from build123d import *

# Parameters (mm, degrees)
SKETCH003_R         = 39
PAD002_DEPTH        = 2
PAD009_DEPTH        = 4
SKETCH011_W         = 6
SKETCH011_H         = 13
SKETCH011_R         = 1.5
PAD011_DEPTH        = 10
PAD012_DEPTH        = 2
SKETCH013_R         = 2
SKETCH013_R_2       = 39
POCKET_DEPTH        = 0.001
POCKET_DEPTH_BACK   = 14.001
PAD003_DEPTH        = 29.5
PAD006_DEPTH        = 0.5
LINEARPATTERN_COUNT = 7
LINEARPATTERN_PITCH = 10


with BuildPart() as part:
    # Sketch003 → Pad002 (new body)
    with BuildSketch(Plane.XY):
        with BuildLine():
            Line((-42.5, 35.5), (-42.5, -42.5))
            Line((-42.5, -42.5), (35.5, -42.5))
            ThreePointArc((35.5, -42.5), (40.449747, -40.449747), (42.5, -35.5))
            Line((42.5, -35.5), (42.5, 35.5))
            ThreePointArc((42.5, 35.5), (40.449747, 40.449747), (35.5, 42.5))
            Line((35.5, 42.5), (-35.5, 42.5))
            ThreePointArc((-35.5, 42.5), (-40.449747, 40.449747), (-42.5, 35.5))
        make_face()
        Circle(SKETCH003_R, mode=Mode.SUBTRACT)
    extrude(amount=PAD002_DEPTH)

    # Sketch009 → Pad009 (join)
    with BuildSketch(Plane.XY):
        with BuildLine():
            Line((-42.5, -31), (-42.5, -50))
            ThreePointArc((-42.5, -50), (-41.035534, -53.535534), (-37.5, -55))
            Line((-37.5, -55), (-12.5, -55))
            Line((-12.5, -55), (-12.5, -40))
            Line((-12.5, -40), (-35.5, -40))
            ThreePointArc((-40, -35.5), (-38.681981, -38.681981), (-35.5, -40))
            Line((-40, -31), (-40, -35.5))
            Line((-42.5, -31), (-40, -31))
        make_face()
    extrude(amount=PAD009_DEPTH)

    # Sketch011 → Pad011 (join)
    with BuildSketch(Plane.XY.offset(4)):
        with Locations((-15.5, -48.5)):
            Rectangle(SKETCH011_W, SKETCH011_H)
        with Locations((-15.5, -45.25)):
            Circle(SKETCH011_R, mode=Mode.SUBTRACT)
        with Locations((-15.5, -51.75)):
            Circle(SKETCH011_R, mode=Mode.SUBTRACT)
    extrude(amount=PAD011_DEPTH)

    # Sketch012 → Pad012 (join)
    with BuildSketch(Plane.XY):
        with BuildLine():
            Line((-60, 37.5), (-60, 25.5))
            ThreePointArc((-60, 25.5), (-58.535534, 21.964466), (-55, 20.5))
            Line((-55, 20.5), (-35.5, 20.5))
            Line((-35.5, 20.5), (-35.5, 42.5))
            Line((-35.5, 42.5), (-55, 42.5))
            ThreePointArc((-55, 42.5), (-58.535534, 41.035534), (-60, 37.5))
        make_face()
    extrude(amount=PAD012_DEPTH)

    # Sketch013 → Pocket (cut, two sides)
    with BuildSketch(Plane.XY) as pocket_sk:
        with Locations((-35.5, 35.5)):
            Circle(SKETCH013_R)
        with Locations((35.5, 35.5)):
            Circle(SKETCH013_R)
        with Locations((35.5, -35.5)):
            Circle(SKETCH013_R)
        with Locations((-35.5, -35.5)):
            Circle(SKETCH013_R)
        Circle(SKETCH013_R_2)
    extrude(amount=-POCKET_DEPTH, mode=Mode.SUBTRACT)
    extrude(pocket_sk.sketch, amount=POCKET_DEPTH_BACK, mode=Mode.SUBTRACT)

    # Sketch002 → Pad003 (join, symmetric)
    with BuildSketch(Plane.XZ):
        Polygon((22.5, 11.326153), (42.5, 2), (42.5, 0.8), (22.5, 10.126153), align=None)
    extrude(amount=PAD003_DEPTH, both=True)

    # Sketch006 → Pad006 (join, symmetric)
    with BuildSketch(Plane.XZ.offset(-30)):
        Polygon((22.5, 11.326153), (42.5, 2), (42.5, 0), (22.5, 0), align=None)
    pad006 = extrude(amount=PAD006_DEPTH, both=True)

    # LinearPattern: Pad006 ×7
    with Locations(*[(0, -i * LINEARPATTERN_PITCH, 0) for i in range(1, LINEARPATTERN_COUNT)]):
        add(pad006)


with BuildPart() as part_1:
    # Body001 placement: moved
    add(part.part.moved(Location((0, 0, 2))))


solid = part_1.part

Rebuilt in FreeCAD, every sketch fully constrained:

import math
import FreeCAD as App
import Part
import Sketcher
Q = App.Units.Quantity


def add_polygon(sketch, points):
    """Adds a closed chain of lines whose ends are joined by coincident constraints."""
    first, n = sketch.GeometryCount, len(points)
    for a, b in zip(points, points[1:] + points[:1]):
        sketch.addGeometry(Part.LineSegment(App.Vector(*a, 0), App.Vector(*b, 0)), False)
    for i in range(n):
        sketch.addConstraint(Sketcher.Constraint("Coincident", first + i, 2, first + (i + 1) % n, 1))

doc = App.newDocument("Part")
body = doc.addObject("PartDesign::Body", "Body")

# Sketch on XY plane
sketch1 = body.newObject("Sketcher::SketchObject", "Sketch")
sketch1.AttachmentSupport = (doc.getObject("XY_Plane"), [""])
sketch1.MapMode = "FlatFace"
sketch1.addGeometry(Part.LineSegment(App.Vector(-42, 36, 0), App.Vector(-42, -42, 0)), False)
sketch1.addGeometry(Part.LineSegment(App.Vector(-42, -42, 0), App.Vector(36, -42, 0)), False)
sketch1.addGeometry(Part.ArcOfCircle(Part.Circle(App.Vector(35, -35, 0), App.Vector(0, 0, 1), 7), math.radians(-90), math.radians(0)), False)
sketch1.addGeometry(Part.LineSegment(App.Vector(42, -36, 0), App.Vector(42, 36, 0)), False)
sketch1.addGeometry(Part.ArcOfCircle(Part.Circle(App.Vector(35, 35, 0), App.Vector(0, 0, 1), 7), math.radians(0), math.radians(90)), False)
sketch1.addGeometry(Part.LineSegment(App.Vector(36, 42, 0), App.Vector(-36, 42, 0)), False)
sketch1.addGeometry(Part.ArcOfCircle(Part.Circle(App.Vector(-35, 35, 0), App.Vector(0, 0, 1), 7), math.radians(90), math.radians(180)), False)
sketch1.addGeometry(Part.Circle(App.Vector(0, 0, 0), App.Vector(0, 0, 1), 39), False)
sketch1.addConstraint(Sketcher.Constraint("Coincident", 0, 2, 1, 1))
sketch1.addConstraint(Sketcher.Constraint("Tangent", 1, 2, 2, 1))
sketch1.addConstraint(Sketcher.Constraint("Tangent", 2, 2, 3, 1))
sketch1.addConstraint(Sketcher.Constraint("Tangent", 3, 2, 4, 1))
sketch1.addConstraint(Sketcher.Constraint("Tangent", 4, 2, 5, 1))
sketch1.addConstraint(Sketcher.Constraint("Tangent", 5, 2, 6, 1))
sketch1.addConstraint(Sketcher.Constraint("Tangent", 6, 2, 0, 1))
sketch1.addConstraint(Sketcher.Constraint("Vertical", 0))
sketch1.addConstraint(Sketcher.Constraint("Horizontal", 1))
sketch1.addConstraint(Sketcher.Constraint("Vertical", 3))
sketch1.addConstraint(Sketcher.Constraint("Horizontal", 5))
sketch1.addConstraint(Sketcher.Constraint("Coincident", 7, 3, -1, 1))
sketch1.addConstraint(Sketcher.Constraint("Equal", 2, 4))
sketch1.addConstraint(Sketcher.Constraint("Equal", 4, 6))
sketch1.addConstraint(Sketcher.Constraint("Symmetric", 2, 3, 6, 3, -1, 1))
sketch1.addConstraint(Sketcher.Constraint("Equal", 1, 0))
sketch1.addConstraint(Sketcher.Constraint("Diameter", 7, 78.0))
sketch1.addConstraint(Sketcher.Constraint("Radius", 2, 7.000002))
sketch1.addConstraint(Sketcher.Constraint("DistanceX", 1, 1, 1, 2, 78.0))
pad1 = body.newObject("PartDesign::Pad", "Pad")
pad1.Profile = sketch1
pad1.Length = 2

# Sketch on XY plane
sketch2 = body.newObject("Sketcher::SketchObject", "Sketch001")
sketch2.AttachmentSupport = (doc.getObject("XY_Plane"), [""])
sketch2.MapMode = "FlatFace"
sketch2.addGeometry(Part.LineSegment(App.Vector(-42.5, -31, 0), App.Vector(-42.5, -50, 0)), False)
sketch2.addGeometry(Part.ArcOfCircle(Part.Circle(App.Vector(-37.5, -50, 0), App.Vector(0, 0, 1), 5), math.radians(180), math.radians(270)), False)
sketch2.addGeometry(Part.LineSegment(App.Vector(-37.5, -55, 0), App.Vector(-12.5, -55, 0)), False)
sketch2.addGeometry(Part.LineSegment(App.Vector(-12.5, -55, 0), App.Vector(-12.5, -40, 0)), False)
sketch2.addGeometry(Part.LineSegment(App.Vector(-12.5, -40, 0), App.Vector(-35.5, -40, 0)), False)
sketch2.addGeometry(Part.ArcOfCircle(Part.Circle(App.Vector(-35.5, -35.5, 0), App.Vector(0, 0, 1), 4.5), math.radians(180), math.radians(270)), False)
sketch2.addGeometry(Part.LineSegment(App.Vector(-40, -35.5, 0), App.Vector(-40, -31, 0)), False)
sketch2.addGeometry(Part.LineSegment(App.Vector(-40, -31, 0), App.Vector(-42.5, -31, 0)), False)
sketch2.addConstraint(Sketcher.Constraint("Tangent", 0, 2, 1, 1))
sketch2.addConstraint(Sketcher.Constraint("Tangent", 1, 2, 2, 1))
sketch2.addConstraint(Sketcher.Constraint("Coincident", 2, 2, 3, 1))
sketch2.addConstraint(Sketcher.Constraint("Coincident", 3, 2, 4, 1))
sketch2.addConstraint(Sketcher.Constraint("Tangent", 4, 2, 5, 2))
sketch2.addConstraint(Sketcher.Constraint("Tangent", 5, 1, 6, 1))
sketch2.addConstraint(Sketcher.Constraint("Coincident", 6, 2, 7, 1))
sketch2.addConstraint(Sketcher.Constraint("Coincident", 7, 2, 0, 1))
sketch2.addConstraint(Sketcher.Constraint("Vertical", 0))
sketch2.addConstraint(Sketcher.Constraint("Horizontal", 2))
sketch2.addConstraint(Sketcher.Constraint("Vertical", 3))
sketch2.addConstraint(Sketcher.Constraint("Horizontal", 4))
sketch2.addConstraint(Sketcher.Constraint("Vertical", 6))
sketch2.addConstraint(Sketcher.Constraint("Horizontal", 7))
sketch2.addConstraint(Sketcher.Constraint("Radius", 1, 5.0))
sketch2.addConstraint(Sketcher.Constraint("Radius", 5, 4.499998))
sketch2.addConstraint(Sketcher.Constraint("DistanceX", 2, 1, 2, 2, 25.0))
sketch2.addConstraint(Sketcher.Constraint("DistanceX", 4, 2, 4, 1, 23.0))
sketch2.addConstraint(Sketcher.Constraint("DistanceY", 0, 2, 0, 1, 19.0))
sketch2.addConstraint(Sketcher.Constraint("DistanceY", 3, 1, 3, 2, 15.0))
sketch2.addConstraint(Sketcher.Constraint("DistanceY", 1, 3, -1, 1, 50.0))
sketch2.addConstraint(Sketcher.Constraint("DistanceX", 5, 1, -1, 1, 40.0))
pad2 = body.newObject("PartDesign::Pad", "Pad001")
pad2.Profile = sketch2
pad2.Length = 4

# Sketch on XY plane
sketch3 = body.newObject("Sketcher::SketchObject", "Sketch002")
sketch3.AttachmentSupport = (doc.getObject("XY_Plane"), [""])
sketch3.MapMode = "FlatFace"
sketch3.AttachmentOffset = App.Placement(App.Vector(0, 0, 4), App.Rotation())
add_polygon(sketch3, [(-18.5, -42), (-18.5, -55), (-12.5, -55), (-12.5, -42)])  # lines 0-3
sketch3.addGeometry(Part.Circle(App.Vector(-15.5, -51.8, 0), App.Vector(0, 0, 1), 1.5), False)  # 4
sketch3.addGeometry(Part.Circle(App.Vector(-15.5, -45.2, 0), App.Vector(0, 0, 1), 1.5), False)  # 5
sketch3.addConstraint(Sketcher.Constraint("Vertical", 0))
sketch3.addConstraint(Sketcher.Constraint("Horizontal", 1))
sketch3.addConstraint(Sketcher.Constraint("Vertical", 2))
sketch3.addConstraint(Sketcher.Constraint("Horizontal", 3))
sketch3.addConstraint(Sketcher.Constraint("Equal", 4, 5))
sketch3.addConstraint(Sketcher.Constraint("Vertical", 4, 3, 5, 3))
sketch3.addConstraint(Sketcher.Constraint("Diameter", 4, 3.0))
sketch3.addConstraint(Sketcher.Constraint("DistanceX", 1, 1, 1, 2, 6.0))
sketch3.addConstraint(Sketcher.Constraint("DistanceY", 0, 2, 0, 1, 13.0))
sketch3.addConstraint(Sketcher.Constraint("DistanceY", 0, 2, -1, 1, 55.0))
sketch3.addConstraint(Sketcher.Constraint("DistanceX", 0, 2, 4, 3, 3.0))
sketch3.addConstraint(Sketcher.Constraint("DistanceX", 4, 3, -1, 1, 15.5))
sketch3.addConstraint(Sketcher.Constraint("DistanceY", 4, 3, 5, 3, 6.5))
sketch3.addConstraint(Sketcher.Constraint("DistanceY", 4, 3, -1, 1, 51.75))
pad3 = body.newObject("PartDesign::Pad", "Pad002")
pad3.Profile = sketch3
pad3.Length = 10

# Sketch on XY plane
sketch4 = body.newObject("Sketcher::SketchObject", "Sketch003")
sketch4.AttachmentSupport = (doc.getObject("XY_Plane"), [""])
sketch4.MapMode = "FlatFace"
sketch4.addGeometry(Part.LineSegment(App.Vector(-60, 37.5, 0), App.Vector(-60, 25.5, 0)), False)
sketch4.addGeometry(Part.ArcOfCircle(Part.Circle(App.Vector(-55, 25.5, 0), App.Vector(0, 0, 1), 5), math.radians(180), math.radians(270)), False)
sketch4.addGeometry(Part.LineSegment(App.Vector(-55, 20.5, 0), App.Vector(-35.5, 20.5, 0)), False)
sketch4.addGeometry(Part.LineSegment(App.Vector(-35.5, 20.5, 0), App.Vector(-35.5, 42.5, 0)), False)
sketch4.addGeometry(Part.LineSegment(App.Vector(-35.5, 42.5, 0), App.Vector(-55, 42.5, 0)), False)
sketch4.addGeometry(Part.ArcOfCircle(Part.Circle(App.Vector(-55, 37.5, 0), App.Vector(0, 0, 1), 5), math.radians(90), math.radians(180)), False)
sketch4.addConstraint(Sketcher.Constraint("Tangent", 0, 2, 1, 1))
sketch4.addConstraint(Sketcher.Constraint("Tangent", 1, 2, 2, 1))
sketch4.addConstraint(Sketcher.Constraint("Coincident", 2, 2, 3, 1))
sketch4.addConstraint(Sketcher.Constraint("Coincident", 3, 2, 4, 1))
sketch4.addConstraint(Sketcher.Constraint("Tangent", 4, 2, 5, 1))
sketch4.addConstraint(Sketcher.Constraint("Tangent", 5, 2, 0, 1))
sketch4.addConstraint(Sketcher.Constraint("Vertical", 0))
sketch4.addConstraint(Sketcher.Constraint("Horizontal", 2))
sketch4.addConstraint(Sketcher.Constraint("Vertical", 3))
sketch4.addConstraint(Sketcher.Constraint("Horizontal", 4))
sketch4.addConstraint(Sketcher.Constraint("Equal", 1, 5))
sketch4.addConstraint(Sketcher.Constraint("Radius", 1, 5.0))
sketch4.addConstraint(Sketcher.Constraint("DistanceY", 0, 2, 0, 1, 12.0))
sketch4.addConstraint(Sketcher.Constraint("DistanceX", 2, 1, 2, 2, 19.5))
sketch4.addConstraint(Sketcher.Constraint("DistanceX", 1, 3, -1, 1, 55.0))
sketch4.addConstraint(Sketcher.Constraint("DistanceY", -1, 1, 1, 3, 25.5))
pad4 = body.newObject("PartDesign::Pad", "Pad003")
pad4.Profile = sketch4
pad4.Length = 2

# Sketch on XY plane
sketch5 = body.newObject("Sketcher::SketchObject", "Sketch004")
sketch5.AttachmentSupport = (doc.getObject("XY_Plane"), [""])
sketch5.MapMode = "FlatFace"
sketch5.addGeometry(Part.Circle(App.Vector(-35.5, 35.5, 0), App.Vector(0, 0, 1), 2), False)
sketch5.addGeometry(Part.Circle(App.Vector(35.5, 35.5, 0), App.Vector(0, 0, 1), 2), False)
sketch5.addGeometry(Part.Circle(App.Vector(35.5, -35.5, 0), App.Vector(0, 0, 1), 2), False)
sketch5.addGeometry(Part.Circle(App.Vector(-35.5, -35.5, 0), App.Vector(0, 0, 1), 2), False)
sketch5.addGeometry(Part.Circle(App.Vector(0, 0, 0), App.Vector(0, 0, 1), 39), False)
sketch5.addConstraint(Sketcher.Constraint("Coincident", 4, 3, -1, 1))
sketch5.addConstraint(Sketcher.Constraint("Equal", 0, 1))
sketch5.addConstraint(Sketcher.Constraint("Equal", 1, 2))
sketch5.addConstraint(Sketcher.Constraint("Equal", 2, 3))
sketch5.addConstraint(Sketcher.Constraint("Symmetric", 0, 3, 2, 3, -1, 1))
sketch5.addConstraint(Sketcher.Constraint("Symmetric", 1, 3, 3, 3, -1, 1))
sketch5.addConstraint(Sketcher.Constraint("Symmetric", 0, 3, 1, 3, -2))
sketch5.addConstraint(Sketcher.Constraint("Diameter", 0, 4.0))
sketch5.addConstraint(Sketcher.Constraint("Diameter", 4, 78.0))
sketch5.addConstraint(Sketcher.Constraint("DistanceX", 0, 3, 1, 3, 71.0))
sketch5.addConstraint(Sketcher.Constraint("DistanceY", 2, 3, 1, 3, 71.0))
pocket1 = body.newObject("PartDesign::Pocket", "Pocket")
pocket1.Profile = sketch5
pocket1.Type = "ThroughAll"
pocket1.Midplane = True

# Sketch on XZ plane
sketch6 = body.newObject("Sketcher::SketchObject", "Sketch005")
sketch6.AttachmentSupport = (doc.getObject("XZ_Plane"), [""])
sketch6.MapMode = "FlatFace"
add_polygon(sketch6, [(42.5, 2), (22.5, 11.3), (22.5, 10.1), (42.5, 0.8)])  # lines 0-3
sketch6.addConstraint(Sketcher.Constraint("Vertical", 1))
sketch6.addConstraint(Sketcher.Constraint("Vertical", 3))
sketch6.addConstraint(Sketcher.Constraint("Parallel", 0, 2))
sketch6.addConstraint(Sketcher.Constraint("Angle", 0, Q("155 deg")))
sketch6.addConstraint(Sketcher.Constraint("DistanceY", 1, 2, 1, 1, 1.2))
sketch6.addConstraint(Sketcher.Constraint("DistanceY", -1, 1, 3, 2, 2.0))
sketch6.addConstraint(Sketcher.Constraint("DistanceX", 1, 2, 2, 2, 20.0))
sketch6.addConstraint(Sketcher.Constraint("DistanceX", -1, 1, 0, 2, 22.5))
pad5 = body.newObject("PartDesign::Pad", "Pad004")
pad5.Profile = sketch6
pad5.Length = 59
pad5.Midplane = True

# Sketch on XZ plane
sketch7 = body.newObject("Sketcher::SketchObject", "Sketch006")
sketch7.AttachmentSupport = (doc.getObject("XZ_Plane"), [""])
sketch7.MapMode = "FlatFace"
sketch7.AttachmentOffset = App.Placement(App.Vector(0, 0, -30), App.Rotation())
add_polygon(sketch7, [(42.5, 2), (22.5, 11.3), (22.5, 0), (42.5, 0)])  # lines 0-3
sketch7.addConstraint(Sketcher.Constraint("Vertical", 1))
sketch7.addConstraint(Sketcher.Constraint("Horizontal", 2))
sketch7.addConstraint(Sketcher.Constraint("Vertical", 3))
sketch7.addConstraint(Sketcher.Constraint("PointOnObject", 1, 2, -1))
sketch7.addConstraint(Sketcher.Constraint("DistanceX", 2, 1, 2, 2, 20.0))
sketch7.addConstraint(Sketcher.Constraint("DistanceY", 3, 1, 3, 2, 2.0))
sketch7.addConstraint(Sketcher.Constraint("Angle", 0, Q("155 deg")))
sketch7.addConstraint(Sketcher.Constraint("DistanceX", -1, 1, 0, 2, 22.5))
pad6 = body.newObject("PartDesign::Pad", "Pad005")
pad6.Profile = sketch7
pad6.Length = 1
pad6.Midplane = True
doc.recompute()

linearpattern = body.newObject("PartDesign::LinearPattern", "LinearPattern")
linearpattern.Originals = [pad6]
linearpattern.Direction = (doc.getObject("Y_Axis"), [""])
linearpattern.Mode = "offset"
linearpattern.Offset = 10
linearpattern.Occurrences = 7
linearpattern.Reversed = True
body.Tip = linearpattern
body2 = doc.addObject("PartDesign::Body", "Body001")
doc.recompute()

body.Placement = App.Placement(App.Vector(0, 0, 2), App.Rotation(App.Vector(0, 0, 1), 0))
boolean = body2.newObject("PartDesign::Boolean", "Boolean")
boolean.Type = "Fuse"
boolean.addObjects([body])

doc.recompute()
